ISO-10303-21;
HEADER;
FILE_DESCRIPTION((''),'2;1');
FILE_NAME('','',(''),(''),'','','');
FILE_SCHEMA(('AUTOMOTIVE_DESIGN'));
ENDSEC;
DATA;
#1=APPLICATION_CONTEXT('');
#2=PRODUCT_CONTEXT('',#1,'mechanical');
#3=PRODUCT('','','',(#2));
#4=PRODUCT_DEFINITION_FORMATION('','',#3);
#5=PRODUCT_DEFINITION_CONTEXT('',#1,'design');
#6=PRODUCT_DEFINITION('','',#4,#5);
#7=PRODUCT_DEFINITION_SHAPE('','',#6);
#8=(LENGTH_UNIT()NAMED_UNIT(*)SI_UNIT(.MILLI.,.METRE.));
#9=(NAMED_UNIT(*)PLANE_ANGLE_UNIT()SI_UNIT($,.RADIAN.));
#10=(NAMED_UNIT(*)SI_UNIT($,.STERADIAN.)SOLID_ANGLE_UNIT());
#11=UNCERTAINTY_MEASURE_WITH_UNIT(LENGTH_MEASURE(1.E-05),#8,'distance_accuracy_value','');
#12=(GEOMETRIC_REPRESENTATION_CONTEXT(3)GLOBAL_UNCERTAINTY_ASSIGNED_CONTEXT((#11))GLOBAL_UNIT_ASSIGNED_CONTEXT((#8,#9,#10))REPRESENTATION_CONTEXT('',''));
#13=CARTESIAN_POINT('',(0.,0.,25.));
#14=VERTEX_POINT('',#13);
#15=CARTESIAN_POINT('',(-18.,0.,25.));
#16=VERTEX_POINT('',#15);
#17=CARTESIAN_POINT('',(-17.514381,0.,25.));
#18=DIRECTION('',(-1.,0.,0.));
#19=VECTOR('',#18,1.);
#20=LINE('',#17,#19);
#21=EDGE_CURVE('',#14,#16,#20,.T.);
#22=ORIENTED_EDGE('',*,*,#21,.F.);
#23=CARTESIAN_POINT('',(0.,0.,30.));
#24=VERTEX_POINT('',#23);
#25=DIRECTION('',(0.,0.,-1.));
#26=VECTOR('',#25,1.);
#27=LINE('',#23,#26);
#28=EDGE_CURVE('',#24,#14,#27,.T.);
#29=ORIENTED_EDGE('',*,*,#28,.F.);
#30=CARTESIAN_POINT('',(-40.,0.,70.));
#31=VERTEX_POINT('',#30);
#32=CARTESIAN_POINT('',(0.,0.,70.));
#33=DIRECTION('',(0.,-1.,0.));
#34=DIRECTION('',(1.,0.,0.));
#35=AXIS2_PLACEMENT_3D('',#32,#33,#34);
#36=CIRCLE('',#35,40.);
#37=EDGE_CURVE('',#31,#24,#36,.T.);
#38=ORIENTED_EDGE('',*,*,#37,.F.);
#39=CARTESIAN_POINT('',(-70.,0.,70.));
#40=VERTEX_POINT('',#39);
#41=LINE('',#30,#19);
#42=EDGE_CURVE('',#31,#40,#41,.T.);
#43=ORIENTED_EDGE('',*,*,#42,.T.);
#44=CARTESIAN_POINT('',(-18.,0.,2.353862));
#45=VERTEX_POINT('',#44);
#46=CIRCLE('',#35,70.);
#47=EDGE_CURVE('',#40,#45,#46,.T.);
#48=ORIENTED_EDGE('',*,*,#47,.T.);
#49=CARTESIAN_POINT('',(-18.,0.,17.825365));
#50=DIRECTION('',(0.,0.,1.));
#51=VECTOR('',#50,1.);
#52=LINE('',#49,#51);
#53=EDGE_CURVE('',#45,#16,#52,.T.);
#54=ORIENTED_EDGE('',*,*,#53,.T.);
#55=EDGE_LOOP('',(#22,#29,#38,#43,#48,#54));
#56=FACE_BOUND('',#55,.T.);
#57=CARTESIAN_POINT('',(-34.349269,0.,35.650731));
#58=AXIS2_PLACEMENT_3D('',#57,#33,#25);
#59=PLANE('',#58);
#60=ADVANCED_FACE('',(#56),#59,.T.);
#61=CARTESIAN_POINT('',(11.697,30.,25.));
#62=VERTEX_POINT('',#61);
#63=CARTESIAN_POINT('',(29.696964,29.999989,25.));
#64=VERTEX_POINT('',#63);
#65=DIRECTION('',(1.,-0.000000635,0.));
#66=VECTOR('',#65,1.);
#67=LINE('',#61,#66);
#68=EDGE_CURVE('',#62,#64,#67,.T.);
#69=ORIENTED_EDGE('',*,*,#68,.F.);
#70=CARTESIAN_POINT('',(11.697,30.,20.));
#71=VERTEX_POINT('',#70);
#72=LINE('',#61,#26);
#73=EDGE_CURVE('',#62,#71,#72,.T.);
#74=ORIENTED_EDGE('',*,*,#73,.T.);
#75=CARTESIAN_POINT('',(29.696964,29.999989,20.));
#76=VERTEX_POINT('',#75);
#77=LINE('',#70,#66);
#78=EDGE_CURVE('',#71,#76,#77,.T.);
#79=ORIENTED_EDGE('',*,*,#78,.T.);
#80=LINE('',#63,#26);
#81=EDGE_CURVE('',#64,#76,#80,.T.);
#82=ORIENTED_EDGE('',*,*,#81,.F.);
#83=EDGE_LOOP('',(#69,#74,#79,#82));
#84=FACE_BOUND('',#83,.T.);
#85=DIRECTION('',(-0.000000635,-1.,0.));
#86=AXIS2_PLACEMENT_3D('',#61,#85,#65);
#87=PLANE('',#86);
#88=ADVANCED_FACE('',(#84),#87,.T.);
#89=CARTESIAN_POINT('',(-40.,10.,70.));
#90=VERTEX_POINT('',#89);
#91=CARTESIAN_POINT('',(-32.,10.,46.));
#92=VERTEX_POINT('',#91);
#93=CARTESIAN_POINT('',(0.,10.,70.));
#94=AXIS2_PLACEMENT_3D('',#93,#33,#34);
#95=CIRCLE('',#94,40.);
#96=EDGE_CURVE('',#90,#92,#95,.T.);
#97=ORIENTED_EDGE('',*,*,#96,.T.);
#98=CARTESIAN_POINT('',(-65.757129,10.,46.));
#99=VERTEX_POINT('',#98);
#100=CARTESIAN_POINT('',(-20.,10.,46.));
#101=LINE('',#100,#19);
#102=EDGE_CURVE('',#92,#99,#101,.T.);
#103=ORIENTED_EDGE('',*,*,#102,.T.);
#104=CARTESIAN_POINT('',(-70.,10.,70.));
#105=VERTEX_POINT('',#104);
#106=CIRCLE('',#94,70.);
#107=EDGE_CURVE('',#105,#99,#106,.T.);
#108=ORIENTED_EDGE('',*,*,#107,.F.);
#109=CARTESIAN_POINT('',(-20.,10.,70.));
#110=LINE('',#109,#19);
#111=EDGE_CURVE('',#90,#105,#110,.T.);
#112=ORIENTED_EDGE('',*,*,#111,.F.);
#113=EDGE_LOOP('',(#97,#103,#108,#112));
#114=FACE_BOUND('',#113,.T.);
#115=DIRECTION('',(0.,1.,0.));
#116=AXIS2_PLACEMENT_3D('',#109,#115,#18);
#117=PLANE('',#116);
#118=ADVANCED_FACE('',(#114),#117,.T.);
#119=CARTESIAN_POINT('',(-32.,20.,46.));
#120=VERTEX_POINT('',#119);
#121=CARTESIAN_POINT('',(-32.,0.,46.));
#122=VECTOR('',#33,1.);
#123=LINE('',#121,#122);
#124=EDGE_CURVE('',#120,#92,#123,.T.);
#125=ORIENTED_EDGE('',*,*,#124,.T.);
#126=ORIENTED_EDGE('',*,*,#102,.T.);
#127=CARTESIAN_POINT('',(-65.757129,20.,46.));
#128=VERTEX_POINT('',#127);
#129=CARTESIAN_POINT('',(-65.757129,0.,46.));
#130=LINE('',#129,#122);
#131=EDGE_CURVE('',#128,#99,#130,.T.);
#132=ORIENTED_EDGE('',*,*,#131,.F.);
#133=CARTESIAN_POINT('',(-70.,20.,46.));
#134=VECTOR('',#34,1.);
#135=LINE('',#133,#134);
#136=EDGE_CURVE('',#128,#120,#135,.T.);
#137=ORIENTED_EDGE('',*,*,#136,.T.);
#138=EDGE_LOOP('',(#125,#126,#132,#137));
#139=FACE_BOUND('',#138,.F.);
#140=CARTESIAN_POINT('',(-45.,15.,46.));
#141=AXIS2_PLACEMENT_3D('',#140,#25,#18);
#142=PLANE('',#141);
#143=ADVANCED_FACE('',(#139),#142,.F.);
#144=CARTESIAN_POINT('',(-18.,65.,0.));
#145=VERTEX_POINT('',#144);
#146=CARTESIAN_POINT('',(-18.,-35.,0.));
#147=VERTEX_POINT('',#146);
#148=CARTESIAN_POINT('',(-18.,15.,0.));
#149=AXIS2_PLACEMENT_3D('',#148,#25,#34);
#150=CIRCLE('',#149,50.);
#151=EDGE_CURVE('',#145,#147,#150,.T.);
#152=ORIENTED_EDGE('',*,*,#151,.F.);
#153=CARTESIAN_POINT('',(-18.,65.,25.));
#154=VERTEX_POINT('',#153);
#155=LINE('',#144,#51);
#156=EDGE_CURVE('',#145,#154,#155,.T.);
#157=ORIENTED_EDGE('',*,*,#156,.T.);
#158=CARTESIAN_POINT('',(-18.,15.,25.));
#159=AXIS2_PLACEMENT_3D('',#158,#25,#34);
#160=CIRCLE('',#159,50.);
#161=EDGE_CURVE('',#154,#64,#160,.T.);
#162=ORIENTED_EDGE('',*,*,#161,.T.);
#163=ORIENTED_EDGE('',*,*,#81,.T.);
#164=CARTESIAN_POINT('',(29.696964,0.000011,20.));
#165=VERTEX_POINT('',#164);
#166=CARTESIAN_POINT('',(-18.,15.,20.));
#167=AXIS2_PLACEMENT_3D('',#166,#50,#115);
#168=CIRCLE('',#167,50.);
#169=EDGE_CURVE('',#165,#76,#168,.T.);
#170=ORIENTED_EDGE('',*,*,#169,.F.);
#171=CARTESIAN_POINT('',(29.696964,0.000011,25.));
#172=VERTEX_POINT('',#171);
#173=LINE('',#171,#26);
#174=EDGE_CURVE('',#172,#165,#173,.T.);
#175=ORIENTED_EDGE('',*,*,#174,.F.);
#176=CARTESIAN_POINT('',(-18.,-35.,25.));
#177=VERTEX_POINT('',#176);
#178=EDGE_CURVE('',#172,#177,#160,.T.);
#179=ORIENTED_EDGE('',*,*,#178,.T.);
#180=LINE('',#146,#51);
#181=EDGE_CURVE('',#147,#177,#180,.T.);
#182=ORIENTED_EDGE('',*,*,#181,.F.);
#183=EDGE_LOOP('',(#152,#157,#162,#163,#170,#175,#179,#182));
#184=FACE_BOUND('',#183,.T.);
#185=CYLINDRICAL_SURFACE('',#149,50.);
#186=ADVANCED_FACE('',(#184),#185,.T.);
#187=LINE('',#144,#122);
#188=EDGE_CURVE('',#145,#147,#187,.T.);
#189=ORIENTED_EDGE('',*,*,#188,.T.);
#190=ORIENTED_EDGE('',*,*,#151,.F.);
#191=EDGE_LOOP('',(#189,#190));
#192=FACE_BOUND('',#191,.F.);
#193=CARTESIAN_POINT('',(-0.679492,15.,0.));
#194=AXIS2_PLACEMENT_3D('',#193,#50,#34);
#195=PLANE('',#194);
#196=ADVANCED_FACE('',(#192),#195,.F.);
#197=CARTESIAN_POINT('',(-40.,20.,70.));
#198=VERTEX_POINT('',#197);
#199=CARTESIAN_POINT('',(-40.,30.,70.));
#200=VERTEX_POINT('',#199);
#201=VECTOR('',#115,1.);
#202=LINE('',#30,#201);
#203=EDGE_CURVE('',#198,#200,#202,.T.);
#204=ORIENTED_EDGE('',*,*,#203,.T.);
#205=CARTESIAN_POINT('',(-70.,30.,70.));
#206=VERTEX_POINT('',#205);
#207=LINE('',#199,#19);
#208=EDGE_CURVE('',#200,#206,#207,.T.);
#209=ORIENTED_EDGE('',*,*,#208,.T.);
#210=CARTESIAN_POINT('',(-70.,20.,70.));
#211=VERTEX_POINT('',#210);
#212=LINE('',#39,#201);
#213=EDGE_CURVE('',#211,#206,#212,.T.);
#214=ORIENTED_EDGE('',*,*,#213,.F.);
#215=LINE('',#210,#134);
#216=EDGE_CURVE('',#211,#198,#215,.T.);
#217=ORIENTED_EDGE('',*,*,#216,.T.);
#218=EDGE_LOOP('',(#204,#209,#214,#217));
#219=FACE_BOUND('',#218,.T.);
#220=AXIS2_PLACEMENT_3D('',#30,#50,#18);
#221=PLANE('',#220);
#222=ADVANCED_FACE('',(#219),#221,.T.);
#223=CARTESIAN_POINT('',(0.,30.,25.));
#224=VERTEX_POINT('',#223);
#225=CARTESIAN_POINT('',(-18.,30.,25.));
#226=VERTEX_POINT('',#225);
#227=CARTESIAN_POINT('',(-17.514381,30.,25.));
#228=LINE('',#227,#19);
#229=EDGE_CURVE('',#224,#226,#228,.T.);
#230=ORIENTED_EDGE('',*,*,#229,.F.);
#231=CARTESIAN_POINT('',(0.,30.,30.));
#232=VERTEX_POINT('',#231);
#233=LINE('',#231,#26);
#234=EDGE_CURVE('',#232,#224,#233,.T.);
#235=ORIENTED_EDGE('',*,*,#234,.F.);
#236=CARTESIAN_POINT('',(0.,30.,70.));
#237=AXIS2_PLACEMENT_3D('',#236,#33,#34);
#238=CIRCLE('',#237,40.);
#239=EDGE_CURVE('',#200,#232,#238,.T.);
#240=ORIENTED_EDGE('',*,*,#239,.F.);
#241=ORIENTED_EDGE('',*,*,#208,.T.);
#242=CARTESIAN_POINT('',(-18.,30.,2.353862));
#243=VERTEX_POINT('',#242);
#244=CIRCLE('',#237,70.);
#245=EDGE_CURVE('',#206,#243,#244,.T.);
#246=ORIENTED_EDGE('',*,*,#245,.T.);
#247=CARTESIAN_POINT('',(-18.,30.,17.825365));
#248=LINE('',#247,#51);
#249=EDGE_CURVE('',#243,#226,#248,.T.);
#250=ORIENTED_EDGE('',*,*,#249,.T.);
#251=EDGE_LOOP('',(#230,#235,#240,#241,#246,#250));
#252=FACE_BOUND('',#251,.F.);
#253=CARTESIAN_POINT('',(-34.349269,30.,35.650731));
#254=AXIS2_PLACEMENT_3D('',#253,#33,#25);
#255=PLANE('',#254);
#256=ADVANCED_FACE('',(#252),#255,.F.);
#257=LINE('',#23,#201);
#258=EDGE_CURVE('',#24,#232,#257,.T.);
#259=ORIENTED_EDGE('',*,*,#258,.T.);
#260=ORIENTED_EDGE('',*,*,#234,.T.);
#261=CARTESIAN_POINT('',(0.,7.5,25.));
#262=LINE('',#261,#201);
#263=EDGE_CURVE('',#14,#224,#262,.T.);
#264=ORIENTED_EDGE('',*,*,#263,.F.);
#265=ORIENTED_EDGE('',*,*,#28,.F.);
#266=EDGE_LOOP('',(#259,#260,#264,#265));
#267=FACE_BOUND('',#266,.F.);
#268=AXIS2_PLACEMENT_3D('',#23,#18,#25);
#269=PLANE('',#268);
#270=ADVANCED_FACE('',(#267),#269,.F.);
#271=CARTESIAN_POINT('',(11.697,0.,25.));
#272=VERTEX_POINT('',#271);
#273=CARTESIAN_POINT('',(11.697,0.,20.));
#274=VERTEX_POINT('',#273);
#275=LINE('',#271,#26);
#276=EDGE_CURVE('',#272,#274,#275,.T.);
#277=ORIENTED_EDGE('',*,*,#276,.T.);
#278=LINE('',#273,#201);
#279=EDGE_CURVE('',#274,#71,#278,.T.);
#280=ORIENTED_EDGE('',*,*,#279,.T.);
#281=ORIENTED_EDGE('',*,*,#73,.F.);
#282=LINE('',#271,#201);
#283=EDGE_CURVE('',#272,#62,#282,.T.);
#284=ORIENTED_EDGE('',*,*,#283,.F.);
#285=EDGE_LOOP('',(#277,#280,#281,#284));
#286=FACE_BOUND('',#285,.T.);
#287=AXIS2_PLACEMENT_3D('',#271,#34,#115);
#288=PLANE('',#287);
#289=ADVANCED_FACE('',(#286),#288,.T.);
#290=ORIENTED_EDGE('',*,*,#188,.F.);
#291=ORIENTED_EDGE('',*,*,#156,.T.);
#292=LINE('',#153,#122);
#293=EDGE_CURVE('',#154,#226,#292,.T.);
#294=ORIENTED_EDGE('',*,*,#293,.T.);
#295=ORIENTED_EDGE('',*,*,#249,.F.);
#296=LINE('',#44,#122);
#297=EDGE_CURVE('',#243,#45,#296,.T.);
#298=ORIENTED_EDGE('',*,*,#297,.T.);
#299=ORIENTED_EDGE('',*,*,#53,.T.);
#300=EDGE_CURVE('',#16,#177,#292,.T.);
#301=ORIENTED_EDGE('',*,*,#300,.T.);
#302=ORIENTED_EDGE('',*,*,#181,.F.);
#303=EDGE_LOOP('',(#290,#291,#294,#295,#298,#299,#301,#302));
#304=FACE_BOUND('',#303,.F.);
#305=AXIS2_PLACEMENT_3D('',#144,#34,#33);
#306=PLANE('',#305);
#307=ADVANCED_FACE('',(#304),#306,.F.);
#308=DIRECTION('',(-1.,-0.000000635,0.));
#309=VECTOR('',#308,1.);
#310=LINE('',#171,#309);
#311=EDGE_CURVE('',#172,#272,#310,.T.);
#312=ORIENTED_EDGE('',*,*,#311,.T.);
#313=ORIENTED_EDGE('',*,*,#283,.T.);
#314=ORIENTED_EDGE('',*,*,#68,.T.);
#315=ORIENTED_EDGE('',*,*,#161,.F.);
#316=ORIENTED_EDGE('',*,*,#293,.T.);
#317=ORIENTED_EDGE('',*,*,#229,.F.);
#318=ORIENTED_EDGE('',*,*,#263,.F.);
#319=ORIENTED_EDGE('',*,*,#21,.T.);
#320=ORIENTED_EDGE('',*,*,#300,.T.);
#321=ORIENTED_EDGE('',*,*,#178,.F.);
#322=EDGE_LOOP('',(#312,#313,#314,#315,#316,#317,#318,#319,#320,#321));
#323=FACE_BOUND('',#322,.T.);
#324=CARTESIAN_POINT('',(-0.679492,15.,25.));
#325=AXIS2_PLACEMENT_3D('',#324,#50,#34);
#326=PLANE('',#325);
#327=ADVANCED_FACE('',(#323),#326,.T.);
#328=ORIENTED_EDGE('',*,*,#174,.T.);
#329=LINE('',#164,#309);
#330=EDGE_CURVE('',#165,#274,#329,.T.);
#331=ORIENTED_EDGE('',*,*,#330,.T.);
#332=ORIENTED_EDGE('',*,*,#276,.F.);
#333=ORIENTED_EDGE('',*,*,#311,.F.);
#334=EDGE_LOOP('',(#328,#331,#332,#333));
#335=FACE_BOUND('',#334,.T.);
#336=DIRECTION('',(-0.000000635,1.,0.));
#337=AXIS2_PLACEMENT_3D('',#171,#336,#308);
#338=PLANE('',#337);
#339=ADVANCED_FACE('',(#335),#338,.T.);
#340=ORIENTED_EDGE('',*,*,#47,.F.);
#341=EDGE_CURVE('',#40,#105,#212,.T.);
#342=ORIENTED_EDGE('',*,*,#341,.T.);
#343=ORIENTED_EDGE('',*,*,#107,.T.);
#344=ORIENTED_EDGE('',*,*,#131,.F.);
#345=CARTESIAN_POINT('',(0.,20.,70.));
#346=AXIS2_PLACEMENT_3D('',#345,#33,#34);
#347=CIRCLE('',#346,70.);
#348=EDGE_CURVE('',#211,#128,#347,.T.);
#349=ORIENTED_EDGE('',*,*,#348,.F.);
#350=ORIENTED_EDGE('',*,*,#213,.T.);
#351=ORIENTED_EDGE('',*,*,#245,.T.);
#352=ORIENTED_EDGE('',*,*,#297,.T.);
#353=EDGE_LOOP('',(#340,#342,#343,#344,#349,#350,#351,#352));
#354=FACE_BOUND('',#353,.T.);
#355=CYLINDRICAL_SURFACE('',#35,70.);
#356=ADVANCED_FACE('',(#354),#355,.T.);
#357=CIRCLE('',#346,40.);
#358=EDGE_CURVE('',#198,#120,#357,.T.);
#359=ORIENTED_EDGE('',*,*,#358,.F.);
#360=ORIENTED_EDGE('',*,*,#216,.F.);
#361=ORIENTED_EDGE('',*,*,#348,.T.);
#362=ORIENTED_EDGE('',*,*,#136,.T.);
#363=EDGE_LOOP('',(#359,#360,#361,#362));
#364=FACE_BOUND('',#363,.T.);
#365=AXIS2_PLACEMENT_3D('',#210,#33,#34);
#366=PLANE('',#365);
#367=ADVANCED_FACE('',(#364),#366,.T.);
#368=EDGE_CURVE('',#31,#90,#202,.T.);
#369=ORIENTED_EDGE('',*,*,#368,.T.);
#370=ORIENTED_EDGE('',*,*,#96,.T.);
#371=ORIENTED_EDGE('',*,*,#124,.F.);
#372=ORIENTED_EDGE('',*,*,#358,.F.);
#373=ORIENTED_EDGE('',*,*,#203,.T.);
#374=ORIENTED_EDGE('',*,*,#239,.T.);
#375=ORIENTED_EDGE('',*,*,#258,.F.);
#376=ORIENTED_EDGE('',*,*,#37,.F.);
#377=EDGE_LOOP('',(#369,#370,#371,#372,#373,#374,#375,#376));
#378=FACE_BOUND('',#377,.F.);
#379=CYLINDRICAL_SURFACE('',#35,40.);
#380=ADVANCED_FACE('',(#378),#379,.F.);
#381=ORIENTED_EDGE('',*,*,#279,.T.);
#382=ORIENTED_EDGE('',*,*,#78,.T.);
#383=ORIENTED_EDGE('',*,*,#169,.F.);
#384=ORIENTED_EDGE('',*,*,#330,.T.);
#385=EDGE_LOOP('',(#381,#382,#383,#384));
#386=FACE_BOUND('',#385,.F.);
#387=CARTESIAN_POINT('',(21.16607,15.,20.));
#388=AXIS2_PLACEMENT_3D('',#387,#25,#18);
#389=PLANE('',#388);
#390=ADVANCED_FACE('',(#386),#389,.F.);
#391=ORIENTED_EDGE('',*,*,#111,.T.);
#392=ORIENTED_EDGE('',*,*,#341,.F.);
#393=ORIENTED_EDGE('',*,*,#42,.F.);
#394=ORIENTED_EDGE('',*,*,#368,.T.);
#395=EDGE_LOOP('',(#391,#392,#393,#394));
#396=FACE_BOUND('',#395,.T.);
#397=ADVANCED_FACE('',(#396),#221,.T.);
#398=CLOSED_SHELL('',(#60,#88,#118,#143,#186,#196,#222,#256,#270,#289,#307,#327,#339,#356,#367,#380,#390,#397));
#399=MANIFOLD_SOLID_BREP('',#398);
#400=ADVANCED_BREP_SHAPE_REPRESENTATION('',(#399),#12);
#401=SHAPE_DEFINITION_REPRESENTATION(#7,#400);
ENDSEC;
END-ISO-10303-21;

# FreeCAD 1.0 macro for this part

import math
import FreeCAD as App
import Part
import Sketcher
from FreeCAD import Vector
Q = App.Units.Quantity

doc = App.newDocument("Part")
body = doc.addObject("PartDesign::Body", "Body")

# Sketch on XZ plane
sketch1 = doc.addObject("Sketcher::SketchObject", "Sketch")
body.addObject(sketch1)
sketch1.AttachmentSupport = (doc.XZ_Plane, [""])
sketch1.MapMode = "FlatFace"
sketch1.addGeometry([
    Part.ArcOfCircle(Part.Circle(Vector(0, 70, 0), Vector(0, 0, 1), 40), math.radians(180), math.radians(270)),
    Part.LineSegment(Vector(-40, 70, 0), Vector(-70, 70, 0)),
    Part.ArcOfCircle(Part.Circle(Vector(0, 70, 0), Vector(0, 0, 1), 70), math.radians(180), math.radians(270)),
    Part.LineSegment(Vector(0, 0, 0), Vector(0, 30, 0)),
], False)
sketch1.addConstraint([
    Sketcher.Constraint("Coincident", 0, 1, 1, 1),
    Sketcher.Constraint("Coincident", 1, 2, 2, 1),
    Sketcher.Constraint("Coincident", 2, 2, 3, 1),
    Sketcher.Constraint("Coincident", 3, 2, 0, 2),
    Sketcher.Constraint("Horizontal", 1),
    Sketcher.Constraint("Vertical", 3),
    Sketcher.Constraint("Coincident", 2, 2, -1, 1),
    Sketcher.Constraint("Coincident", 2, 3, 0, 3),
    Sketcher.Constraint("PointOnObject", 0, 3, -2),
    Sketcher.Constraint("Horizontal", 2, 3, 0, 1),
    Sketcher.Constraint("Radius", 0, Q("40 mm")),
    Sketcher.Constraint("Radius", 2, Q("70 mm")),
])
pad1 = doc.addObject("PartDesign::Pad", "Pad")
body.addObject(pad1)
pad1.Profile = sketch1
pad1.Length = 30
pad1.Reversed = True

# Sketch on XY plane
sketch2 = doc.addObject("Sketcher::SketchObject", "Sketch001")
body.addObject(sketch2)
sketch2.AttachmentSupport = (doc.XY_Plane, [""])
sketch2.MapMode = "FlatFace"
sketch2.AttachmentOffset = App.Placement(Vector(0, 0, 70), App.Rotation())
sketch2.addGeometry([
    Part.LineSegment(Vector(-70, 10, 0), Vector(-20, 10, 0)),
    Part.LineSegment(Vector(-20, 10, 0), Vector(-20, 20, 0)),
    Part.LineSegment(Vector(-20, 20, 0), Vector(-70, 20, 0)),
    Part.LineSegment(Vector(-70, 20, 0), Vector(-70, 10, 0)),
], False)
sketch2.addConstraint([
    Sketcher.Constraint("Coincident", 0, 2, 1, 1),
    Sketcher.Constraint("Coincident", 1, 2, 2, 1),
    Sketcher.Constraint("Coincident", 2, 2, 3, 1),
    Sketcher.Constraint("Coincident", 3, 2, 0, 1),
    Sketcher.Constraint("Horizontal", 0),
    Sketcher.Constraint("Vertical", 1),
    Sketcher.Constraint("Horizontal", 2),
    Sketcher.Constraint("Vertical", 3),
    Sketcher.Constraint("DistanceX", 0, 1, 0, 2, Q("50 mm")),
    Sketcher.Constraint("DistanceY", 1, 1, 1, 2, Q("10 mm")),
    Sketcher.Constraint("DistanceX", 0, 2, -1, 1, Q("20 mm")),
    Sketcher.Constraint("DistanceY", -1, 1, 0, 2, Q("10 mm")),
])
pocket1 = doc.addObject("PartDesign::Pocket", "Pocket")
body.addObject(pocket1)
pocket1.Profile = sketch2
pocket1.Length = 24

# Sketch on XY plane
sketch3 = doc.addObject("Sketcher::SketchObject", "Sketch002")
body.addObject(sketch3)
sketch3.AttachmentSupport = (doc.XY_Plane, [""])
sketch3.MapMode = "FlatFace"
sketch3.addGeometry([
    Part.ArcOfCircle(Part.Circle(Vector(-18, 15, 0), Vector(0, 0, 1), 50), math.radians(-90), math.radians(90)),
    Part.LineSegment(Vector(-18, 65, 0), Vector(-18, -35, 0)),
], False)
sketch3.addConstraint([
    Sketcher.Constraint("Coincident", 0, 1, 1, 2),
    Sketcher.Constraint("Coincident", 1, 1, 0, 2),
    Sketcher.Constraint("Vertical", 1),
    Sketcher.Constraint("Radius", 0, Q("50 mm")),
    Sketcher.Constraint("DistanceX", 0, 3, -1, 1, Q("18 mm")),
    Sketcher.Constraint("DistanceY", -1, 1, 0, 3, Q("15 mm")),
    Sketcher.Constraint("DistanceX", 0, 1, -1, 1, Q("18 mm")),
])
pad2 = doc.addObject("PartDesign::Pad", "Pad001")
body.addObject(pad2)
pad2.Profile = sketch3
pad2.Length = 25

# Sketch on XY plane
sketch4 = doc.addObject("Sketcher::SketchObject", "Sketch003")
body.addObject(sketch4)
sketch4.AttachmentSupport = (doc.XY_Plane, [""])
sketch4.MapMode = "FlatFace"
sketch4.AttachmentOffset = App.Placement(Vector(0, 0, 25), App.Rotation())
sketch4.addGeometry([
    Part.LineSegment(Vector(11.697, 30, 0), Vector(11.697, 0, 0)),
    Part.LineSegment(Vector(11.697, 0, 0), Vector(29.697, 0, 0)),
    Part.ArcOfCircle(Part.Circle(Vector(-18, 15, 0), Vector(0, 0, 1), 50.000038), math.radians(-17.457589), math.radians(17.457589)),
    Part.LineSegment(Vector(29.697, 30, 0), Vector(11.697, 30, 0)),
], False)
sketch4.addConstraint([
    Sketcher.Constraint("Coincident", 0, 2, 1, 1),
    Sketcher.Constraint("Coincident", 1, 2, 2, 1),
    Sketcher.Constraint("Coincident", 2, 2, 3, 1),
    Sketcher.Constraint("Coincident", 3, 2, 0, 1),
    Sketcher.Constraint("Vertical", 0),
    Sketcher.Constraint("Horizontal", 1),
    Sketcher.Constraint("Horizontal", 3),
    Sketcher.Constraint("PointOnObject", 0, 2, -1),
    Sketcher.Constraint("Vertical", 1, 2, 2, 2),
    Sketcher.Constraint("Radius", 2, Q("50 mm")),
    Sketcher.Constraint("DistanceX", 1, 1, 1, 2, Q("18 mm")),
    Sketcher.Constraint("DistanceY", 0, 2, 0, 1, Q("30 mm")),
    Sketcher.Constraint("DistanceX", 2, 3, -1, 1, Q("18 mm")),
])
pocket2 = doc.addObject("PartDesign::Pocket", "Pocket001")
body.addObject(pocket2)
pocket2.Profile = sketch4
pocket2.Length = 5

doc.recompute()
